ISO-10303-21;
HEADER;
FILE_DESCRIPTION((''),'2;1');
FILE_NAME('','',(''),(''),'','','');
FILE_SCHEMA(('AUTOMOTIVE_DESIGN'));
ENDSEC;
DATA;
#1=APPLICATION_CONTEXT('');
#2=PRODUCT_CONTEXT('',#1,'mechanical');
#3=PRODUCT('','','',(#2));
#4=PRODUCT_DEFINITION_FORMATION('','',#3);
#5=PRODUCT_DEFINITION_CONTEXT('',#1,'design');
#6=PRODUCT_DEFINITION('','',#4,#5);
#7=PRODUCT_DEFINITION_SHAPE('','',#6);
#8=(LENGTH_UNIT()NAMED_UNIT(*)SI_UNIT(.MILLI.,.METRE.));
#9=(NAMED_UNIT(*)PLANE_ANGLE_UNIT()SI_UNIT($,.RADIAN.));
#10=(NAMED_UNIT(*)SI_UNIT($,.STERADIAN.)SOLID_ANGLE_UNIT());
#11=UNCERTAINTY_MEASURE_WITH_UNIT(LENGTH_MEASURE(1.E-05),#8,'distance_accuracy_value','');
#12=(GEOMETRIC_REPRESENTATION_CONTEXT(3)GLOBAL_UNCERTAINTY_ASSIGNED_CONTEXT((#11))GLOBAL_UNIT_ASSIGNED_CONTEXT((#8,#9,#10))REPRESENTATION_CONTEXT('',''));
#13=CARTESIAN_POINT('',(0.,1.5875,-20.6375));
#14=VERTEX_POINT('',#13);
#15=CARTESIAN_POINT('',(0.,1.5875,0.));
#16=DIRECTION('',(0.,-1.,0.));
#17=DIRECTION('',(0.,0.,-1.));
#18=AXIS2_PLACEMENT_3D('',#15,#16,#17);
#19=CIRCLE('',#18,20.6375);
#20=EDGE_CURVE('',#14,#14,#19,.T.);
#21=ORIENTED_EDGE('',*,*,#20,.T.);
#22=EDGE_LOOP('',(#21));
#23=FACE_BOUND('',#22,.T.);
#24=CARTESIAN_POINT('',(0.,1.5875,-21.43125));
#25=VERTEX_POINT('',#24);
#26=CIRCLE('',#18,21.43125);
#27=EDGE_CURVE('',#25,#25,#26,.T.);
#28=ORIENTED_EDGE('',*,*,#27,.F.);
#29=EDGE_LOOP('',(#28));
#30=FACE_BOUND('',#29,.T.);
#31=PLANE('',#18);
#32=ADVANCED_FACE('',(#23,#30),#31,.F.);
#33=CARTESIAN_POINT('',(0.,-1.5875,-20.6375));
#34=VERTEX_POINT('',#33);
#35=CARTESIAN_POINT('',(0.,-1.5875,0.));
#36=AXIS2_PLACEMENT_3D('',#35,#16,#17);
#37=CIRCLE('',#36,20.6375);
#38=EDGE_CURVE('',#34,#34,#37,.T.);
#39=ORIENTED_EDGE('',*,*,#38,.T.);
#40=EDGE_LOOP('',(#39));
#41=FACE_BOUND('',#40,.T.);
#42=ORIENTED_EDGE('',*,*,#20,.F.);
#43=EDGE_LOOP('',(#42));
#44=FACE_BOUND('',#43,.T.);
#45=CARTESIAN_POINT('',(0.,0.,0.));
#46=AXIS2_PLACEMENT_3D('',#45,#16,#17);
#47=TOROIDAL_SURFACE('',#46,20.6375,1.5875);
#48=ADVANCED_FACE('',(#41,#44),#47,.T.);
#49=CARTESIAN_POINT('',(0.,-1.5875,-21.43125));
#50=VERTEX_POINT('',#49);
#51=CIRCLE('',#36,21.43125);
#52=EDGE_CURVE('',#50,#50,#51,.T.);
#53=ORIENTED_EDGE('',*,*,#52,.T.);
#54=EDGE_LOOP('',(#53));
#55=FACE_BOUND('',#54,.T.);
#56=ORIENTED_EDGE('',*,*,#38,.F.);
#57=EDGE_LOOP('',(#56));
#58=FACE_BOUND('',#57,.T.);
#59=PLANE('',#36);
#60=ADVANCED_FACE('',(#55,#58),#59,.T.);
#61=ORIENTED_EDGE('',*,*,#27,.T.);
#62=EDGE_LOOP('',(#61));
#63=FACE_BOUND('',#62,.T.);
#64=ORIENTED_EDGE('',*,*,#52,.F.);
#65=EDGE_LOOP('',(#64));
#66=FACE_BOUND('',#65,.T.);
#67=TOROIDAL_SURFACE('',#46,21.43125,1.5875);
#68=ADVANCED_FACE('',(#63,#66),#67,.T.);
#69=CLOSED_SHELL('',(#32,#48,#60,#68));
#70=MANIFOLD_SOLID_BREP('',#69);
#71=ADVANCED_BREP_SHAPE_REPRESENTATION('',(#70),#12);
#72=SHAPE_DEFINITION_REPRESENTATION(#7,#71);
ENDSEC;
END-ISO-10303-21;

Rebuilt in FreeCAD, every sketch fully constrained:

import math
import FreeCAD as App
import Part
import Sketcher
from FreeCAD import Vector
Q = App.Units.Quantity

doc = App.newDocument("Part")
body = doc.addObject("PartDesign::Body", "Body")

# Sketch on XY plane
sketch1 = body.newObject("Sketcher::SketchObject", "Sketch")
sketch1.AttachmentSupport = (doc.getObject("XY_Plane"), [""])
sketch1.MapMode = "FlatFace"
sketch1.addGeometry(Part.LineSegment(Vector(21.4, 1.6, 0), Vector(20.6, 1.6, 0)), False)
sketch1.addGeometry(Part.ArcOfCircle(Part.Circle(Vector(20.6, 0, 0), Vector(0, 0, 1), 1.6), math.radians(90), math.radians(270)), False)
sketch1.addGeometry(Part.LineSegment(Vector(20.6, -1.6, 0), Vector(21.4, -1.6, 0)), False)
sketch1.addGeometry(Part.ArcOfCircle(Part.Circle(Vector(21.4, 0, 0), Vector(0, 0, 1), 1.6), math.radians(-90), math.radians(90)), False)
sketch1.addConstraint(Sketcher.Constraint("Tangent", 0, 2, 1, 1))
sketch1.addConstraint(Sketcher.Constraint("Tangent", 1, 2, 2, 1))
sketch1.addConstraint(Sketcher.Constraint("Tangent", 2, 2, 3, 1))
sketch1.addConstraint(Sketcher.Constraint("Tangent", 3, 2, 0, 1))
sketch1.addConstraint(Sketcher.Constraint("Horizontal", 0))
sketch1.addConstraint(Sketcher.Constraint("Horizontal", 2))
sketch1.addConstraint(Sketcher.Constraint("PointOnObject", 1, 3, -1))
sketch1.addConstraint(Sketcher.Constraint("Radius", 1, Q("0.0625 in")))
sketch1.addConstraint(Sketcher.Constraint("DistanceX", 0, 2, 0, 1, Q("0.03125 in")))
sketch1.addConstraint(Sketcher.Constraint("DistanceX", -1, 1, 1, 3, Q("0.8125 in")))
revolution = body.newObject("PartDesign::Revolution", "Revolution")
revolution.Profile = sketch1
revolution.ReferenceAxis = (sketch1, ["V_Axis"])
revolution.Angle = 360

doc.recompute()
